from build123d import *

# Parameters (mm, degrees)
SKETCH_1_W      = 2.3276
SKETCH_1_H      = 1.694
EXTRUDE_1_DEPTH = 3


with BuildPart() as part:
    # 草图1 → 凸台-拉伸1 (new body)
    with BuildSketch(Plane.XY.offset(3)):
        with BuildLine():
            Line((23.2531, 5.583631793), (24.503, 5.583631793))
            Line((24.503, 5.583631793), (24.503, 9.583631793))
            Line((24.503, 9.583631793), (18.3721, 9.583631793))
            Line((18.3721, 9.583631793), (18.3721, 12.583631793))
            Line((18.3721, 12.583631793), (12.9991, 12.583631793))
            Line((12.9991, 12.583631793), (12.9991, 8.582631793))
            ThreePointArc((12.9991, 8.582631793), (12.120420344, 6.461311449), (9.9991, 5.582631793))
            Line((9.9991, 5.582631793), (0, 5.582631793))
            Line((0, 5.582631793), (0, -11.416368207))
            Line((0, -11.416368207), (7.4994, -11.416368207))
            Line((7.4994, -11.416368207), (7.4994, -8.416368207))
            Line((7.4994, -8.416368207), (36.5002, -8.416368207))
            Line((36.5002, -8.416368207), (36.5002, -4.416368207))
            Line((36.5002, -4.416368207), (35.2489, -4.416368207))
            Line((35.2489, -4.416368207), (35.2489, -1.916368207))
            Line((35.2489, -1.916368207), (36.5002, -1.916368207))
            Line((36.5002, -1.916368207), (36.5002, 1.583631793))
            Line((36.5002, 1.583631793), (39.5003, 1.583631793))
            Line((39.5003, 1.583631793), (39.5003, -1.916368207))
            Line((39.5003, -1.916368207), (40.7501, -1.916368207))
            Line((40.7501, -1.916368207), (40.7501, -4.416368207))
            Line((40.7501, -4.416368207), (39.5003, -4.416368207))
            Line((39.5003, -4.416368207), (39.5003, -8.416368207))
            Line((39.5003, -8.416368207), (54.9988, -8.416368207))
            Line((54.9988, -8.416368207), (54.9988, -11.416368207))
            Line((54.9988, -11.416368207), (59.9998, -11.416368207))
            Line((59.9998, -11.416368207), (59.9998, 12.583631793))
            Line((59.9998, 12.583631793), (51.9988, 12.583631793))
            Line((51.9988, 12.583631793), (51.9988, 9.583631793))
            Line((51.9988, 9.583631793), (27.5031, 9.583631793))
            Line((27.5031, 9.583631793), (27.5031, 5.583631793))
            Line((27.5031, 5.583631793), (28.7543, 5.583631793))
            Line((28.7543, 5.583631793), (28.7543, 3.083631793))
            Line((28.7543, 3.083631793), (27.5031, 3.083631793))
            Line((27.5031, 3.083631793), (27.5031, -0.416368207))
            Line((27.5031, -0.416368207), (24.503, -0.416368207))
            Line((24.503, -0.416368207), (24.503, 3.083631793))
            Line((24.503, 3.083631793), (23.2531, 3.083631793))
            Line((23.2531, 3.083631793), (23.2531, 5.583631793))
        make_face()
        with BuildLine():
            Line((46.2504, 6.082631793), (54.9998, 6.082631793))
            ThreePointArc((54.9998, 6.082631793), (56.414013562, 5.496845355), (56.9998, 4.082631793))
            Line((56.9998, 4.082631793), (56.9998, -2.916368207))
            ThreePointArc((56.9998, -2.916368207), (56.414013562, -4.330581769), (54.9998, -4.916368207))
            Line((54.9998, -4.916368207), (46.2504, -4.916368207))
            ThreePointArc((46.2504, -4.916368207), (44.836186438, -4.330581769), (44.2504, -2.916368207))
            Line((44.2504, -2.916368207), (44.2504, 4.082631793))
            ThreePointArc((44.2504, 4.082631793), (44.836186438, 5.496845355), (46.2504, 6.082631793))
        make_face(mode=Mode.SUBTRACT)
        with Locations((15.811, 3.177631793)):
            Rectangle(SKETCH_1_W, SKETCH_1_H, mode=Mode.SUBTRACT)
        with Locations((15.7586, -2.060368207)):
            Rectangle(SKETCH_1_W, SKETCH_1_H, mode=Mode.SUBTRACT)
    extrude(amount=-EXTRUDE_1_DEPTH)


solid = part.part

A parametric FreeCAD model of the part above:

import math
import FreeCAD as App
import Part
import Sketcher

V = App.Vector

doc = App.newDocument("Part")
body = doc.addObject("PartDesign::Body", "Body")

# Sketch on XY plane
sketch1 = body.newObject("Sketcher::SketchObject", "Sketch")
sketch1.AttachmentSupport = (doc.getObject("XY_Plane"), [""])
sketch1.MapMode = "FlatFace"
sketch1.AttachmentOffset = App.Placement(V(0, 0, 3), App.Rotation())
sketch1.addGeometry([
    Part.LineSegment(V(23.3, 5.6, 0), V(24.5, 5.6, 0)),  # 0
    Part.LineSegment(V(24.5, 5.6, 0), V(24.5, 9.6, 0)),  # 1
    Part.LineSegment(V(24.5, 9.6, 0), V(18.4, 9.6, 0)),  # 2
    Part.LineSegment(V(18.4, 9.6, 0), V(18.4, 12.6, 0)),  # 3
    Part.LineSegment(V(18.4, 12.6, 0), V(13, 12.6, 0)),  # 4
    Part.LineSegment(V(13, 12.6, 0), V(13, 8.6, 0)),  # 5
    Part.ArcOfCircle(Part.Circle(V(10, 8.6, 0), V(0, 0, 1), 3), math.radians(-90), math.radians(0)),  # 6
    Part.LineSegment(V(10, 5.6, 0), V(0, 5.6, 0)),  # 7
    Part.LineSegment(V(0, 5.6, 0), V(0, -11.4, 0)),  # 8
    Part.LineSegment(V(0, -11.4, 0), V(7.5, -11.4, 0)),  # 9
    Part.LineSegment(V(7.5, -11.4, 0), V(7.5, -8.4, 0)),  # 10
    Part.LineSegment(V(7.5, -8.4, 0), V(36.5, -8.4, 0)),  # 11
    Part.LineSegment(V(36.5, -8.4, 0), V(36.5, -4.4, 0)),  # 12
    Part.LineSegment(V(36.5, -4.4, 0), V(35.2, -4.4, 0)),  # 13
    Part.LineSegment(V(35.2, -4.4, 0), V(35.2, -1.9, 0)),  # 14
    Part.LineSegment(V(35.2, -1.9, 0), V(36.5, -1.9, 0)),  # 15
    Part.LineSegment(V(36.5, -1.9, 0), V(36.5, 1.6, 0)),  # 16
    Part.LineSegment(V(36.5, 1.6, 0), V(39.5, 1.6, 0)),  # 17
    Part.LineSegment(V(39.5, 1.6, 0), V(39.5, -1.9, 0)),  # 18
    Part.LineSegment(V(39.5, -1.9, 0), V(40.8, -1.9, 0)),  # 19
    Part.LineSegment(V(40.8, -1.9, 0), V(40.8, -4.4, 0)),  # 20
    Part.LineSegment(V(40.8, -4.4, 0), V(39.5, -4.4, 0)),  # 21
    Part.LineSegment(V(39.5, -4.4, 0), V(39.5, -8.4, 0)),  # 22
    Part.LineSegment(V(39.5, -8.4, 0), V(55, -8.4, 0)),  # 23
    Part.LineSegment(V(55, -8.4, 0), V(55, -11.4, 0)),  # 24
    Part.LineSegment(V(55, -11.4, 0), V(60, -11.4, 0)),  # 25
    Part.LineSegment(V(60, -11.4, 0), V(60, 12.6, 0)),  # 26
    Part.LineSegment(V(60, 12.6, 0), V(52, 12.6, 0)),  # 27
    Part.LineSegment(V(52, 12.6, 0), V(52, 9.6, 0)),  # 28
    Part.LineSegment(V(52, 9.6, 0), V(27.5, 9.6, 0)),  # 29
    Part.LineSegment(V(27.5, 9.6, 0), V(27.5, 5.6, 0)),  # 30
    Part.LineSegment(V(27.5, 5.6, 0), V(28.8, 5.6, 0)),  # 31
    Part.LineSegment(V(28.8, 5.6, 0), V(28.8, 3.1, 0)),  # 32
    Part.LineSegment(V(28.8, 3.1, 0), V(27.5, 3.1, 0)),  # 33
    Part.LineSegment(V(27.5, 3.1, 0), V(27.5, -0.4, 0)),  # 34
    Part.LineSegment(V(27.5, -0.4, 0), V(24.5, -0.4, 0)),  # 35
    Part.LineSegment(V(24.5, -0.4, 0), V(24.5, 3.1, 0)),  # 36
    Part.LineSegment(V(24.5, 3.1, 0), V(23.3, 3.1, 0)),  # 37
    Part.LineSegment(V(23.3, 3.1, 0), V(23.3, 5.6, 0)),  # 38
    Part.LineSegment(V(16.9, -2.9, 0), V(14.6, -2.9, 0)),  # 39
    Part.LineSegment(V(14.6, -2.9, 0), V(14.6, -1.2, 0)),  # 40
    Part.LineSegment(V(14.6, -1.2, 0), V(16.9, -1.2, 0)),  # 41
    Part.LineSegment(V(16.9, -1.2, 0), V(16.9, -2.9, 0)),  # 42
    Part.LineSegment(V(17, 2.3, 0), V(14.6, 2.3, 0)),  # 43
    Part.LineSegment(V(14.6, 2.3, 0), V(14.6, 4, 0)),  # 44
    Part.LineSegment(V(14.6, 4, 0), V(17, 4, 0)),  # 45
    Part.LineSegment(V(17, 4, 0), V(17, 2.3, 0)),  # 46
    Part.ArcOfCircle(Part.Circle(V(46.3, 4.1, 0), V(0, 0, 1), 2), math.radians(90), math.radians(180)),  # 47
    Part.LineSegment(V(46.3, 6.1, 0), V(55, 6.1, 0)),  # 48
    Part.ArcOfCircle(Part.Circle(V(55, 4.1, 0), V(0, 0, 1), 2), math.radians(0), math.radians(90)),  # 49
    Part.LineSegment(V(57, 4.1, 0), V(57, -2.9, 0)),  # 50
    Part.ArcOfCircle(Part.Circle(V(55, -2.9, 0), V(0, 0, 1), 2), math.radians(-90), math.radians(0)),  # 51
    Part.LineSegment(V(55, -4.9, 0), V(46.3, -4.9, 0)),  # 52
    Part.ArcOfCircle(Part.Circle(V(46.3, -2.9, 0), V(0, 0, 1), 2), math.radians(-180), math.radians(-90)),  # 53
    Part.LineSegment(V(44.3, -2.9, 0), V(44.3, 4.1, 0)),  # 54
], False)
sketch1.addConstraint([
    Sketcher.Constraint("Coincident", 0, 2, 1, 1),
    Sketcher.Constraint("Coincident", 1, 2, 2, 1),
    Sketcher.Constraint("Coincident", 2, 2, 3, 1),
    Sketcher.Constraint("Coincident", 3, 2, 4, 1),
    Sketcher.Constraint("Coincident", 4, 2, 5, 1),
    Sketcher.Constraint("Tangent", 5, 2, 6, 2),
    Sketcher.Constraint("Tangent", 6, 1, 7, 1),
    Sketcher.Constraint("Coincident", 7, 2, 8, 1),
    Sketcher.Constraint("Coincident", 8, 2, 9, 1),
    Sketcher.Constraint("Coincident", 9, 2, 10, 1),
    Sketcher.Constraint("Coincident", 10, 2, 11, 1),
    Sketcher.Constraint("Coincident", 11, 2, 12, 1),
    Sketcher.Constraint("Coincident", 12, 2, 13, 1),
    Sketcher.Constraint("Coincident", 13, 2, 14, 1),
    Sketcher.Constraint("Coincident", 14, 2, 15, 1),
    Sketcher.Constraint("Coincident", 15, 2, 16, 1),
    Sketcher.Constraint("Coincident", 16, 2, 17, 1),
    Sketcher.Constraint("Coincident", 17, 2, 18, 1),
    Sketcher.Constraint("Coincident", 18, 2, 19, 1),
    Sketcher.Constraint("Coincident", 19, 2, 20, 1),
    Sketcher.Constraint("Coincident", 20, 2, 21, 1),
    Sketcher.Constraint("Coincident", 21, 2, 22, 1),
    Sketcher.Constraint("Coincident", 22, 2, 23, 1),
    Sketcher.Constraint("Coincident", 23, 2, 24, 1),
    Sketcher.Constraint("Coincident", 24, 2, 25, 1),
    Sketcher.Constraint("Coincident", 25, 2, 26, 1),
    Sketcher.Constraint("Coincident", 26, 2, 27, 1),
    Sketcher.Constraint("Coincident", 27, 2, 28, 1),
    Sketcher.Constraint("Coincident", 28, 2, 29, 1),
    Sketcher.Constraint("Coincident", 29, 2, 30, 1),
    Sketcher.Constraint("Coincident", 30, 2, 31, 1),
    Sketcher.Constraint("Coincident", 31, 2, 32, 1),
    Sketcher.Constraint("Coincident", 32, 2, 33, 1),
    Sketcher.Constraint("Coincident", 33, 2, 34, 1),
    Sketcher.Constraint("Coincident", 34, 2, 35, 1),
    Sketcher.Constraint("Coincident", 35, 2, 36, 1),
    Sketcher.Constraint("Coincident", 36, 2, 37, 1),
    Sketcher.Constraint("Coincident", 37, 2, 38, 1),
    Sketcher.Constraint("Coincident", 38, 2, 0, 1),
    Sketcher.Constraint("Coincident", 39, 2, 40, 1),
    Sketcher.Constraint("Coincident", 40, 2, 41, 1),
    Sketcher.Constraint("Coincident", 41, 2, 42, 1),
    Sketcher.Constraint("Coincident", 42, 2, 39, 1),
    Sketcher.Constraint("Coincident", 43, 2, 44, 1),
    Sketcher.Constraint("Coincident", 44, 2, 45, 1),
    Sketcher.Constraint("Coincident", 45, 2, 46, 1),
    Sketcher.Constraint("Coincident", 46, 2, 43, 1),
    Sketcher.Constraint("Tangent", 47, 1, 48, 1),
    Sketcher.Constraint("Tangent", 48, 2, 49, 2),
    Sketcher.Constraint("Tangent", 49, 1, 50, 1),
    Sketcher.Constraint("Tangent", 50, 2, 51, 2),
    Sketcher.Constraint("Tangent", 51, 1, 52, 1),
    Sketcher.Constraint("Tangent", 52, 2, 53, 2),
    Sketcher.Constraint("Tangent", 53, 1, 54, 1),
    Sketcher.Constraint("Tangent", 54, 2, 47, 2),
    Sketcher.Constraint("Horizontal", 0),
    Sketcher.Constraint("Vertical", 1),
    Sketcher.Constraint("Horizontal", 2),
    Sketcher.Constraint("Vertical", 3),
    Sketcher.Constraint("Horizontal", 4),
    Sketcher.Constraint("Vertical", 5),
    Sketcher.Constraint("Horizontal", 7),
    Sketcher.Constraint("Vertical", 8),
    Sketcher.Constraint("Horizontal", 9),
    Sketcher.Constraint("Vertical", 10),
    Sketcher.Constraint("Horizontal", 11),
    Sketcher.Constraint("Vertical", 12),
    Sketcher.Constraint("Horizontal", 13),
    Sketcher.Constraint("Vertical", 14),
    Sketcher.Constraint("Horizontal", 15),
    Sketcher.Constraint("Vertical", 16),
    Sketcher.Constraint("Horizontal", 17),
    Sketcher.Constraint("Vertical", 18),
    Sketcher.Constraint("Horizontal", 19),
    Sketcher.Constraint("Vertical", 20),
    Sketcher.Constraint("Horizontal", 21),
    Sketcher.Constraint("Vertical", 22),
    Sketcher.Constraint("Horizontal", 23),
    Sketcher.Constraint("Vertical", 24),
    Sketcher.Constraint("Horizontal", 25),
    Sketcher.Constraint("Vertical", 26),
    Sketcher.Constraint("Horizontal", 27),
    Sketcher.Constraint("Vertical", 28),
    Sketcher.Constraint("Horizontal", 29),
    Sketcher.Constraint("Vertical", 30),
    Sketcher.Constraint("Horizontal", 31),
    Sketcher.Constraint("Vertical", 32),
    Sketcher.Constraint("Horizontal", 33),
    Sketcher.Constraint("Vertical", 34),
    Sketcher.Constraint("Horizontal", 35),
    Sketcher.Constraint("Vertical", 36),
    Sketcher.Constraint("Horizontal", 37),
    Sketcher.Constraint("Vertical", 38),
    Sketcher.Constraint("Horizontal", 39),
    Sketcher.Constraint("Vertical", 40),
    Sketcher.Constraint("Horizontal", 41),
    Sketcher.Constraint("Vertical", 42),
    Sketcher.Constraint("Horizontal", 43),
    Sketcher.Constraint("Vertical", 44),
    Sketcher.Constraint("Horizontal", 45),
    Sketcher.Constraint("Vertical", 46),
    Sketcher.Constraint("Horizontal", 48),
    Sketcher.Constraint("Vertical", 50),
    Sketcher.Constraint("Horizontal", 52),
    Sketcher.Constraint("Vertical", 54),
    Sketcher.Constraint("Equal", 47, 49),
    Sketcher.Constraint("Equal", 49, 51),
    Sketcher.Constraint("Equal", 51, 53),
    Sketcher.Constraint("PointOnObject", 7, 2, -2),
    Sketcher.Constraint("Horizontal", 15, 2, 18, 2),
    Sketcher.Constraint("Horizontal", 13, 2, 20, 2),
    Sketcher.Constraint("Horizontal", 11, 2, 22, 2),
    Sketcher.Constraint("Horizontal", 9, 2, 24, 2),
    Sketcher.Constraint("Horizontal", 4, 2, 26, 2),
    Sketcher.Constraint("Horizontal", 2, 2, 28, 2),
    Sketcher.Constraint("Horizontal", 0, 2, 30, 2),
    Sketcher.Constraint("Horizontal", 33, 2, 36, 2),
    Sketcher.Constraint("Vertical", 12, 2, 15, 2),
    Sketcher.Constraint("Vertical", 18, 2, 21, 2),
    Sketcher.Constraint("Vertical", 30, 2, 33, 2),
    Sketcher.Constraint("Vertical", 1, 2, 35, 2),
    Sketcher.Constraint("Equal", 17, 35),
    Sketcher.Constraint("Equal", 41, 43),
    Sketcher.Constraint("Equal", 3, 10),
    Sketcher.Constraint("Equal", 1, 12),
    Sketcher.Constraint("Equal", 20, 32),
    Sketcher.Constraint("Equal", 18, 34),
    Sketcher.Constraint("Equal", 42, 44),
    Sketcher.Constraint("Radius", 6, 3.0),
    Sketcher.Constraint("Radius", 47, 2.0),
    Sketcher.Constraint("DistanceY", 1, 1, 1, 2, 4.0),
    Sketcher.Constraint("DistanceY", 3, 1, 3, 2, 3.0),
    Sketcher.Constraint("DistanceY", 26, 1, 26, 2, 24.0),
    Sketcher.Constraint("DistanceY", 14, 1, 14, 2, 2.5),
    Sketcher.Constraint("DistanceY", 16, 1, 16, 2, 3.5),
    Sketcher.Constraint("DistanceY", 53, 3, 14, 2, 1.0),
    Sketcher.Constraint("DistanceX", 51, 3, 25, 2, 5.0),
    Sketcher.Constraint("DistanceY", 47, 3, 6, 3, 4.5),
    Sketcher.Constraint("DistanceX", 4, 2, 4, 1, 5.373),
    Sketcher.Constraint("DistanceX", 25, 1, 25, 2, 5.001),
    Sketcher.Constraint("DistanceX", 27, 2, 27, 1, 8.001),
    Sketcher.Constraint("DistanceY", 5, 2, 5, 1, 4.001),
    Sketcher.Constraint("DistanceY", 40, 1, 40, 2, 1.694),
    Sketcher.Constraint("DistanceX", 37, 2, 33, 2, 4.25),
    Sketcher.Constraint("DistanceY", 39, 2, 6, 1, 8.49),
    Sketcher.Constraint("DistanceX", 40, 2, 45, 2, 2.38),
    Sketcher.Constraint("DistanceX", 0, 1, 0, 2, 1.2499),
    Sketcher.Constraint("DistanceX", 2, 2, 2, 1, 6.1309),
    Sketcher.Constraint("DistanceX", 7, 2, 7, 1, 9.9991),
    Sketcher.Constraint("DistanceX", 9, 1, 9, 2, 7.4994),
    Sketcher.Constraint("DistanceX", 11, 1, 11, 2, 29.0008),
    Sketcher.Constraint("DistanceX", 13, 2, 13, 1, 1.2513),
    Sketcher.Constraint("DistanceX", 19, 1, 19, 2, 1.2498),
    Sketcher.Constraint("DistanceX", 23, 1, 23, 2, 15.4985),
    Sketcher.Constraint("DistanceX", 31, 1, 31, 2, 1.2512),
    Sketcher.Constraint("DistanceX", 39, 2, 39, 1, 2.3276),
    Sketcher.Constraint("DistanceX", 48, 1, 48, 2, 8.7494),
    Sketcher.Constraint("DistanceY", 40, 2, 43, 2, 3.544),
    Sketcher.Constraint("DistanceX", -1, 1, 39, 2, 14.5948),
    Sketcher.Constraint("DistanceY", -1, 1, 6, 3, 8.582632),
])
pad1 = body.newObject("PartDesign::Pad", "Pad")
pad1.Profile = sketch1
pad1.Length = 3
pad1.Reversed = True

doc.recompute()
